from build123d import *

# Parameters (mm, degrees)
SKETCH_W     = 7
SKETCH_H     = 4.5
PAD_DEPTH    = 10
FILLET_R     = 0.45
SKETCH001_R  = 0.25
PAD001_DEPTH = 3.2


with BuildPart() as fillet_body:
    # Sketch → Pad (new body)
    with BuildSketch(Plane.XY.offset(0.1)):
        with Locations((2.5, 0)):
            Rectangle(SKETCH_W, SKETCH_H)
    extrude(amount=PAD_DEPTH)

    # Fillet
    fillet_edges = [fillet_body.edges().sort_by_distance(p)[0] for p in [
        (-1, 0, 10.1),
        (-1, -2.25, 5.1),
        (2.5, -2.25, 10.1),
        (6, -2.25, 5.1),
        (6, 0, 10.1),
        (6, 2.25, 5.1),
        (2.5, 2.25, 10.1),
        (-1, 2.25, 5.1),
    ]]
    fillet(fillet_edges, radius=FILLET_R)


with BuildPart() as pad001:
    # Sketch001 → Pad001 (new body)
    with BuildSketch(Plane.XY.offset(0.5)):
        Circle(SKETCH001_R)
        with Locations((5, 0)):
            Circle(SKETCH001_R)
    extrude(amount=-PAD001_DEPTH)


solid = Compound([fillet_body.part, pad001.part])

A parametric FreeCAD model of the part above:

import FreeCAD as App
import Part
import Sketcher
Q = App.Units.Quantity


def edges_at(feature, points):
    """Names of the edges that pass closest to the given points."""
    edges = feature.Shape.Edges
    near = lambda p: min(range(len(edges)), key=lambda i: edges[i].distToShape(Part.Vertex(*p))[0])
    return sorted({f"Edge{near(p) + 1}" for p in points})

doc = App.newDocument("Part")
body = doc.addObject("PartDesign::Body", "Body")

# Sketch on XY plane
sketch1 = body.newObject("Sketcher::SketchObject", "Sketch")
sketch1.AttachmentSupport = (doc.getObject("XY_Plane"), [""])
sketch1.MapMode = "FlatFace"
sketch1.AttachmentOffset = App.Placement(App.Vector(0, 0, 0.1), App.Rotation())
sketch1.addGeometry([
    Part.LineSegment(App.Vector(-1, 2.25, 0), App.Vector(-1, -2.25, 0)),
    Part.LineSegment(App.Vector(-1, -2.25, 0), App.Vector(6, -2.25, 0)),
    Part.LineSegment(App.Vector(6, -2.25, 0), App.Vector(6, 2.25, 0)),
    Part.LineSegment(App.Vector(6, 2.25, 0), App.Vector(-1, 2.25, 0)),
], False)
sketch1.addConstraint([
    Sketcher.Constraint("Coincident", 0, 2, 1, 1),
    Sketcher.Constraint("Coincident", 1, 2, 2, 1),
    Sketcher.Constraint("Coincident", 2, 2, 3, 1),
    Sketcher.Constraint("Coincident", 3, 2, 0, 1),
    Sketcher.Constraint("Vertical", 0),
    Sketcher.Constraint("Horizontal", 1),
    Sketcher.Constraint("Vertical", 2),
    Sketcher.Constraint("Horizontal", 3),
    Sketcher.Constraint("DistanceX", 1, 1, 1, 2, Q("7 mm")),
    Sketcher.Constraint("DistanceY", 0, 2, 0, 1, Q("4.5 mm")),
    Sketcher.Constraint("DistanceX", 0, 2, -1, 1, Q("1 mm")),
    Sketcher.Constraint("DistanceY", 0, 2, -1, 1, Q("2.25 mm")),
])
pad1 = body.newObject("PartDesign::Pad", "Pad")
pad1.Profile = sketch1
pad1.Length = 10
doc.recompute()

fillet = body.newObject("PartDesign::Fillet", "Fillet")
fillet.Base = (pad1, edges_at(pad1, [
    (-1, 0, 10.1),
    (-1, -2.25, 5.1),
    (2.5, -2.25, 10.1),
    (6, -2.25, 5.1),
    (6, 0, 10.1),
    (6, 2.25, 5.1),
    (2.5, 2.25, 10.1),
    (-1, 2.25, 5.1),
]))
fillet.Radius = 0.45
body2 = doc.addObject("PartDesign::Body", "Body001")
body2.AllowCompound = True

# Sketch on XY plane
sketch2 = body2.newObject("Sketcher::SketchObject", "Sketch001")
sketch2.AttachmentSupport = (doc.getObject("XY_Plane001"), [""])
sketch2.MapMode = "FlatFace"
sketch2.AttachmentOffset = App.Placement(App.Vector(0, 0, 0.5), App.Rotation())
sketch2.addGeometry([
    Part.Circle(App.Vector(0, 0, 0), App.Vector(0, 0, 1), 0.25),
    Part.Circle(App.Vector(5, 0, 0), App.Vector(0, 0, 1), 0.25),
], False)
sketch2.addConstraint([
    Sketcher.Constraint("Coincident", 0, 3, -1, 1),
    Sketcher.Constraint("Equal", 0, 1),
    Sketcher.Constraint("PointOnObject", 1, 3, -1),
    Sketcher.Constraint("Diameter", 0, Q("0.5 mm")),
    Sketcher.Constraint("DistanceX", -1, 1, 1, 3, Q("5 mm")),
])
pad2 = body2.newObject("PartDesign::Pad", "Pad001")
pad2.Profile = sketch2
pad2.Length = 3.2
pad2.Reversed = True

doc.recompute()
